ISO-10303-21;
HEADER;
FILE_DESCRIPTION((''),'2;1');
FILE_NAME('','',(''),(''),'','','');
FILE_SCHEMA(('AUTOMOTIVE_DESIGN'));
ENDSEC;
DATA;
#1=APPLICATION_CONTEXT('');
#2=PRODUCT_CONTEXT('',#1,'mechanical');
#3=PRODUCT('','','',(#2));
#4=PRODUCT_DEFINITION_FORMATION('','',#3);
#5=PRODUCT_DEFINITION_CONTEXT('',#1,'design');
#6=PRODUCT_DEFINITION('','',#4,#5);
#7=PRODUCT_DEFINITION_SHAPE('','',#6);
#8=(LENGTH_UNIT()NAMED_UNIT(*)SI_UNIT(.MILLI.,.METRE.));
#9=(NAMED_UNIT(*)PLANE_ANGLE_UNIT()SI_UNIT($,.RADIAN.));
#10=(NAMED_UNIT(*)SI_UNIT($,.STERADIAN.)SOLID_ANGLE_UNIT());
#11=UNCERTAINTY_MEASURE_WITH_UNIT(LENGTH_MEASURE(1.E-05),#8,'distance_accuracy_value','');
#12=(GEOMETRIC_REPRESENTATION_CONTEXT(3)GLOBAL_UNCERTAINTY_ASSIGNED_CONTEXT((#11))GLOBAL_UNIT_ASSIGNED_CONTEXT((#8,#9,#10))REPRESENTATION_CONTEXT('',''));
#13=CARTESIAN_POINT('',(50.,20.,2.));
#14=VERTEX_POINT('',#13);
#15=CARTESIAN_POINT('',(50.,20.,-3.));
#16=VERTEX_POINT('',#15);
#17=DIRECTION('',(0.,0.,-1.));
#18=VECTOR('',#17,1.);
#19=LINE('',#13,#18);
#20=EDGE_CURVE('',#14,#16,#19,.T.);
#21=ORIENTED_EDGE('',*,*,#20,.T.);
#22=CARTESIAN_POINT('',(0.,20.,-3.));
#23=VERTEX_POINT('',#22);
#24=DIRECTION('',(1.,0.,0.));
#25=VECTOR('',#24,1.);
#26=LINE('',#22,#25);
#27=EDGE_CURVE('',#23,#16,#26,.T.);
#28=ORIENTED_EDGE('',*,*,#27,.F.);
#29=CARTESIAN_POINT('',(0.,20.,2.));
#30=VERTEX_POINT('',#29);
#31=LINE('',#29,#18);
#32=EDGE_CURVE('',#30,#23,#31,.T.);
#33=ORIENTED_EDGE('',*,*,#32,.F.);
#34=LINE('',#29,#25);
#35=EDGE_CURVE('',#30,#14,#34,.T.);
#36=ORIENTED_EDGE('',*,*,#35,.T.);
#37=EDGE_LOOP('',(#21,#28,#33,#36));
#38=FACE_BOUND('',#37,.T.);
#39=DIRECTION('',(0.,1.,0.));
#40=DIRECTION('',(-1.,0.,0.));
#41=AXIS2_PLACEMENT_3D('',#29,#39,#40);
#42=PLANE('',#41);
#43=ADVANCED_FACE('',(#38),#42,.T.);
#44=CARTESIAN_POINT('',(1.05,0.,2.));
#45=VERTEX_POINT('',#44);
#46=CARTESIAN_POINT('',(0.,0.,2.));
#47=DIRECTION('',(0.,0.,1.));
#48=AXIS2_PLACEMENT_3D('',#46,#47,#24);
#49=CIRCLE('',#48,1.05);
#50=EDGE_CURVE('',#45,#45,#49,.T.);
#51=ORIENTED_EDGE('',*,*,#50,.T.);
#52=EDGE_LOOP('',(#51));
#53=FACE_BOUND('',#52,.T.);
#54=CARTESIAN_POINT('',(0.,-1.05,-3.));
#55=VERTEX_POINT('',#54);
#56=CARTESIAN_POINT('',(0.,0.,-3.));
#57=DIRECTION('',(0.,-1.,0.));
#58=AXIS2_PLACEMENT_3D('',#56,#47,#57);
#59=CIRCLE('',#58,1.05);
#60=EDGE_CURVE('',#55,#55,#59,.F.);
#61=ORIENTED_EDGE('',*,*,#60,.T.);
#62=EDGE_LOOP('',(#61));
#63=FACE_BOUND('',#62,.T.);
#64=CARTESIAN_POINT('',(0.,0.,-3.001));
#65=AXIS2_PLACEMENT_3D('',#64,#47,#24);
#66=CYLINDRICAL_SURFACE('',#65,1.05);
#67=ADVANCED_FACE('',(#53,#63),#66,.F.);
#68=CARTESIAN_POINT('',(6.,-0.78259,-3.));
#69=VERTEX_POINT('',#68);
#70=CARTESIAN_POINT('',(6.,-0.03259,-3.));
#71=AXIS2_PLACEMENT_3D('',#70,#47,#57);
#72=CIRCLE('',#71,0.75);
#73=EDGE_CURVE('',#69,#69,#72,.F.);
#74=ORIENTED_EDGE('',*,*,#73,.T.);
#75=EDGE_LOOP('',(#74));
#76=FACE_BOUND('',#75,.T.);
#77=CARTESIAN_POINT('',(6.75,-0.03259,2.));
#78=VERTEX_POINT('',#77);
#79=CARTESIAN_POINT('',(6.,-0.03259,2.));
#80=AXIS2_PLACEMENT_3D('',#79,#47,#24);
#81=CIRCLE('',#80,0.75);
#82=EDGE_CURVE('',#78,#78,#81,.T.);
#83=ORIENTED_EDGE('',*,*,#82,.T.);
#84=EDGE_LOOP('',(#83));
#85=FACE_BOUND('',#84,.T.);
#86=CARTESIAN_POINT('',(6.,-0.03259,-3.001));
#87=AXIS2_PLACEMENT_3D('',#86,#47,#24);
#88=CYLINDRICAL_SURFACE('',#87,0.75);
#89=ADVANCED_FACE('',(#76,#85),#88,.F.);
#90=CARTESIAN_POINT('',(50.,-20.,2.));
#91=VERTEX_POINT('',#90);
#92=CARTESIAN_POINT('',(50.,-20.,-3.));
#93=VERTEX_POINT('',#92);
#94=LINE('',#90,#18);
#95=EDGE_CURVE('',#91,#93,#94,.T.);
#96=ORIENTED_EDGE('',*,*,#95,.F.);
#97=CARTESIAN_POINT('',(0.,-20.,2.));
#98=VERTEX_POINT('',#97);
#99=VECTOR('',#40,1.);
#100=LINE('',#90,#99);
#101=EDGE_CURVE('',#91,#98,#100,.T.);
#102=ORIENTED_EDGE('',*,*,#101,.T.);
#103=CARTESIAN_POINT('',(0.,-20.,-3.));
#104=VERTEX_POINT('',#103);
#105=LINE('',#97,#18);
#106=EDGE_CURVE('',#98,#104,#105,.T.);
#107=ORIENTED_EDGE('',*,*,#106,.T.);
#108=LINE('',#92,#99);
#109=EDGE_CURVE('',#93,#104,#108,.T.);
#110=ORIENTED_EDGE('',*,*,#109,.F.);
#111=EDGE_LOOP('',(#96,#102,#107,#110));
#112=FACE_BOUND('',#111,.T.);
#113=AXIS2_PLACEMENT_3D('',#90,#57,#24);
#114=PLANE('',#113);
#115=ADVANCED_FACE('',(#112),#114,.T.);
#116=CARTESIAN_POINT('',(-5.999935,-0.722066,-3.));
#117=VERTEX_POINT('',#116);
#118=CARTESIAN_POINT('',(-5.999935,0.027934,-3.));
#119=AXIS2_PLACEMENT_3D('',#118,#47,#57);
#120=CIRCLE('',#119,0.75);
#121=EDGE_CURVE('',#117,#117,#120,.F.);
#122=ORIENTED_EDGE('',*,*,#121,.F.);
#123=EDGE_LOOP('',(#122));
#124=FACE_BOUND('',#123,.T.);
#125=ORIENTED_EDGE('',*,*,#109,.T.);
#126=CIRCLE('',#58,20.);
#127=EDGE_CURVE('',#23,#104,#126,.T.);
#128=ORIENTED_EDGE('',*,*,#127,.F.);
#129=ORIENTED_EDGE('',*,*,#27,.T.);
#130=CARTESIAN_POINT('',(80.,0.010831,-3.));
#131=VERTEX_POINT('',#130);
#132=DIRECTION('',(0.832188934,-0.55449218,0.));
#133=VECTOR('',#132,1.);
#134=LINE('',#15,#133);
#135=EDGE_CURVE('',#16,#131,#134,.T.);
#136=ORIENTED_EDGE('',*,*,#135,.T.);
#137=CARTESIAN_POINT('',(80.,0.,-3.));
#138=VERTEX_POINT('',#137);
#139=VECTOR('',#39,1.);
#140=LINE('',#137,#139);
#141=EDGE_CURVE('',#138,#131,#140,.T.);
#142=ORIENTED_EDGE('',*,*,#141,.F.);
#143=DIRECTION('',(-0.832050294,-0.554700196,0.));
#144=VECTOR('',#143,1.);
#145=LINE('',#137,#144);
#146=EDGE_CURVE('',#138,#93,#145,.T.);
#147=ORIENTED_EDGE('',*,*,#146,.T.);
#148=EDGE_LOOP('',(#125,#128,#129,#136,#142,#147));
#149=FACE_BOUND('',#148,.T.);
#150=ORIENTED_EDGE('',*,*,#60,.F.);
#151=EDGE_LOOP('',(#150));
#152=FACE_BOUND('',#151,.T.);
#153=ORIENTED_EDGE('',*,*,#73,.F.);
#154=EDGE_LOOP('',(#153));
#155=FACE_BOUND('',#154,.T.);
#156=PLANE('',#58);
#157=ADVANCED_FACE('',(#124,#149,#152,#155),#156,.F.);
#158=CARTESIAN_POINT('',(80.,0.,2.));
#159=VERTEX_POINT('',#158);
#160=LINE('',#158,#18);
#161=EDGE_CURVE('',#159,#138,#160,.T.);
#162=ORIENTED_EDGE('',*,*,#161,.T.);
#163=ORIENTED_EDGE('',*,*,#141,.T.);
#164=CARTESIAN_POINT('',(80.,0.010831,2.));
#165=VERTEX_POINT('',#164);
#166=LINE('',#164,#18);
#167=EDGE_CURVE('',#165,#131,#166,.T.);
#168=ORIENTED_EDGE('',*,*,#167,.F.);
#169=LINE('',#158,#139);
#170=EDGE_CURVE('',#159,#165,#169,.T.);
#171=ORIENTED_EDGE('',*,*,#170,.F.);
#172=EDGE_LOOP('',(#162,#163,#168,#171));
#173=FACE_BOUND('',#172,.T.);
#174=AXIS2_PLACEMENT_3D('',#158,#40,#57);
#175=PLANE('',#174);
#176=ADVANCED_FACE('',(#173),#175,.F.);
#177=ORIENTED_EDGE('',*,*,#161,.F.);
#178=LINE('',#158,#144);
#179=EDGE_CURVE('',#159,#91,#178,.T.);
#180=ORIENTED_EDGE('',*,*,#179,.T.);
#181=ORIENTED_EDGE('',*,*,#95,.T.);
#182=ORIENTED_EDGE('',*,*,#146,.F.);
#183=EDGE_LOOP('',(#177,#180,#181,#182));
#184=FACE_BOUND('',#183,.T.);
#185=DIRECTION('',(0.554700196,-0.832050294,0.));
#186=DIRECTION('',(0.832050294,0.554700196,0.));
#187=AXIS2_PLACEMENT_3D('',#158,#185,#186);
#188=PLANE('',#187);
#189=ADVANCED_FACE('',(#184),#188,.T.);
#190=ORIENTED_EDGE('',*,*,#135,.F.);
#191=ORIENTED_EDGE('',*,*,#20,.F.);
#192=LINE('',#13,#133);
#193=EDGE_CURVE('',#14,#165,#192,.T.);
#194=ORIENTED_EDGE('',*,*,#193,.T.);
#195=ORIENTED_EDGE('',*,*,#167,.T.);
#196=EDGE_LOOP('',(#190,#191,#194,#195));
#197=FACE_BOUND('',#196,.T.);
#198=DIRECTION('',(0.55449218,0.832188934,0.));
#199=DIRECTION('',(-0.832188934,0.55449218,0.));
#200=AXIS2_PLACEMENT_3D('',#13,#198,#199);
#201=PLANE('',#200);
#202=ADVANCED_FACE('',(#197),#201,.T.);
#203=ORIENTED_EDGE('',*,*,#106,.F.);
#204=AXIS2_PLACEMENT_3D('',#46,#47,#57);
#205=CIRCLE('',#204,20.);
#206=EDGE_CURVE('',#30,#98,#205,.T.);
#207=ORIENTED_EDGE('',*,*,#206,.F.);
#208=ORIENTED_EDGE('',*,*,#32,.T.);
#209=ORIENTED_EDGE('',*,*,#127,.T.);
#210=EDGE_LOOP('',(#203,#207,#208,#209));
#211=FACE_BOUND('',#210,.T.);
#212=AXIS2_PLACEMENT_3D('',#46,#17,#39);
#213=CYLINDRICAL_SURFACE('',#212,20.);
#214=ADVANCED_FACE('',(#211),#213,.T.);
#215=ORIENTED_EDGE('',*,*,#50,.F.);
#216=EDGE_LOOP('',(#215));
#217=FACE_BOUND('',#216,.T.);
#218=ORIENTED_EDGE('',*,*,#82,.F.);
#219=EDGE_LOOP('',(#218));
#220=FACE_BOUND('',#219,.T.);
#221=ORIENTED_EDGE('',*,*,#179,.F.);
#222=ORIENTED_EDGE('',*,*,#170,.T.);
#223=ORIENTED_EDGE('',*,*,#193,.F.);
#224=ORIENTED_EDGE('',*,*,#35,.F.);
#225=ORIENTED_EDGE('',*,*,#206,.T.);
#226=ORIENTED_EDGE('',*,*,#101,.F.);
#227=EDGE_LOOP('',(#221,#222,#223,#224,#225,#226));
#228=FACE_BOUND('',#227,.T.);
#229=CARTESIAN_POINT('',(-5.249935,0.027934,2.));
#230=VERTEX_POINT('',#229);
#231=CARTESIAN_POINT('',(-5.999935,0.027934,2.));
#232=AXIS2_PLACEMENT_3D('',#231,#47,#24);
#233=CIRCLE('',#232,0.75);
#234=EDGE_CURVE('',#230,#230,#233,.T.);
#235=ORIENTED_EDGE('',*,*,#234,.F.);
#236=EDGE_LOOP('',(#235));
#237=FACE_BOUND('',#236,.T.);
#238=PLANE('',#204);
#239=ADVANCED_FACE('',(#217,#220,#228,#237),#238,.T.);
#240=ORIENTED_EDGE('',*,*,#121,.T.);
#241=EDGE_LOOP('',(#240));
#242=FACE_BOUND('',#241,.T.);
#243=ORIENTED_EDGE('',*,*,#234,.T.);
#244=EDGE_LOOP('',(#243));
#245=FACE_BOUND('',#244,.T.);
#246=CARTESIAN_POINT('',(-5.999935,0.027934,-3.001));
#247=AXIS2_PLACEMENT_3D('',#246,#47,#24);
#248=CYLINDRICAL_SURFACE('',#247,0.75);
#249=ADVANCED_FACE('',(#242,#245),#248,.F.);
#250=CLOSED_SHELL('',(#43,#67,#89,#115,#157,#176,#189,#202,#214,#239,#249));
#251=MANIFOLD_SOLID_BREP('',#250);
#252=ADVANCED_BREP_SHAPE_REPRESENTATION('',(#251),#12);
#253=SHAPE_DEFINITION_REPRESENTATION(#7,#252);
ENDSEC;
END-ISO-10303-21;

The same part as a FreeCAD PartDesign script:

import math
import FreeCAD as App
import Part
import Sketcher
from FreeCAD import Vector

doc = App.newDocument("Part")
params = doc.addObject("Spreadsheet::Sheet", "Params")
for row, (alias, value) in enumerate([
    ("sketch1_radius", "20 mm"),
    ("sketch1_width", "50 mm"),
    ("pad1_length", "5 mm"),
    ("sketch2_diameter", "2.1 mm"),
    ("sketch3_diameter", "1.5 mm"),
    ("sketch4_diameter", "1.5 mm"),
], start=1):
    params.set(f"A{row}", alias)
    params.set(f"B{row}", "=" + value)
    params.setAlias(f"B{row}", alias)

body = doc.addObject("PartDesign::Body", "Body")

sketch1 = body.newObject("Sketcher::SketchObject", "Sketch")
sketch1.AttachmentSupport = (doc.getObject("XZ_Plane"), [""])
sketch1.MapMode = "FlatFace"
sketch1.addGeometry(Part.LineSegment(Vector(0, 20, 0), Vector(50, 20, 0)), False)
sketch1.addGeometry(Part.LineSegment(Vector(50, 20, 0), Vector(80, 0, 0)), False)
sketch1.addGeometry(Part.LineSegment(Vector(80, 0, 0), Vector(80, -0.011, 0)), False)
sketch1.addGeometry(Part.LineSegment(Vector(80, -0.011, 0), Vector(50, -20, 0)), False)
sketch1.addGeometry(Part.LineSegment(Vector(50, -20, 0), Vector(0, -20, 0)), False)
sketch1.addGeometry(Part.ArcOfCircle(Part.Circle(Vector(0, 0, 0), Vector(0, 0, 1), 20), math.radians(90), math.radians(270)), False)
sketch1.addConstraint(Sketcher.Constraint("Coincident", 0, 2, 1, 1))
sketch1.addConstraint(Sketcher.Constraint("Coincident", 1, 2, 2, 1))
sketch1.addConstraint(Sketcher.Constraint("Coincident", 2, 2, 3, 1))
sketch1.addConstraint(Sketcher.Constraint("Coincident", 3, 2, 4, 1))
sketch1.addConstraint(Sketcher.Constraint("Tangent", 4, 2, 5, 2))
sketch1.addConstraint(Sketcher.Constraint("Tangent", 5, 1, 0, 1))
sketch1.addConstraint(Sketcher.Constraint("Horizontal", 0))
sketch1.addConstraint(Sketcher.Constraint("Vertical", 2))
sketch1.addConstraint(Sketcher.Constraint("Horizontal", 4))
sketch1.addConstraint(Sketcher.Constraint("Coincident", 5, 3, -1, 1))
sketch1.addConstraint(Sketcher.Constraint("PointOnObject", 1, 2, -1))
sketch1.addConstraint(Sketcher.Constraint("Vertical", 0, 2, 3, 2))
sketch1.addConstraint(Sketcher.Constraint("Radius", 5, 20.0))
sketch1.addConstraint(Sketcher.Constraint("DistanceX", 0, 1, 0, 2, 50.0))
sketch1.addConstraint(Sketcher.Constraint("DistanceX", -1, 1, 1, 2, 80.0))
sketch1.addConstraint(Sketcher.Constraint("DistanceY", 2, 2, 2, 1, 0.010831))
sketch1.setExpression("Constraints[12]", "Params.sketch1_radius")
sketch1.setExpression("Constraints[13]", "Params.sketch1_width")
pad1 = body.newObject("PartDesign::Pad", "Pad")
pad1.Profile = sketch1
pad1.setExpression("Length", "Params.pad1_length")
pad1.Reversed = True
body2 = doc.addObject("PartDesign::Body", "Body001")
doc.recompute()

body.Placement = App.Placement(Vector(0, 0, 0), App.Rotation(Vector(1, 0, 0), 90))
boolean = body2.newObject("PartDesign::Boolean", "Boolean")
boolean.Type = "Fuse"
boolean.addObjects([body])

sketch2 = body2.newObject("Sketcher::SketchObject", "Sketch001")
sketch2.AttachmentSupport = (doc.getObject("XY_Plane001"), [""])
sketch2.MapMode = "FlatFace"
sketch2.AttachmentOffset = App.Placement(Vector(0, 0, 5), App.Rotation())
sketch2.addGeometry(Part.Circle(Vector(0, 0, 0), Vector(0, 0, 1), 1.1), False)
sketch2.addConstraint(Sketcher.Constraint("Coincident", 0, 3, -1, 1))
sketch2.addConstraint(Sketcher.Constraint("Diameter", 0, 2.1))
sketch2.setExpression("Constraints[1]", "Params.sketch2_diameter")
pocket1 = body2.newObject("PartDesign::Pocket", "Pocket")
pocket1.Profile = sketch2
pocket1.Type = "UpToFirst"

sketch3 = body2.newObject("Sketcher::SketchObject", "Sketch002")
sketch3.AttachmentSupport = (doc.getObject("XY_Plane001"), [""])
sketch3.MapMode = "FlatFace"
sketch3.AttachmentOffset = App.Placement(Vector(0, 0, 5), App.Rotation())
sketch3.addGeometry(Part.Circle(Vector(6, 0, 0), Vector(0, 0, 1), 0.8), False)
sketch3.addConstraint(Sketcher.Constraint("Diameter", 0, 1.5))
sketch3.addConstraint(Sketcher.Constraint("DistanceX", -1, 1, 0, 3, 6.0))
sketch3.addConstraint(Sketcher.Constraint("DistanceY", 0, 3, -1, 1, 0.03259))
sketch3.setExpression("Constraints[0]", "Params.sketch3_diameter")
pocket2 = body2.newObject("PartDesign::Pocket", "Pocket001")
pocket2.Profile = sketch3
pocket2.Type = "UpToFirst"

sketch4 = body2.newObject("Sketcher::SketchObject", "Sketch003")
sketch4.AttachmentSupport = (doc.getObject("XY_Plane001"), [""])
sketch4.MapMode = "FlatFace"
sketch4.AttachmentOffset = App.Placement(Vector(0, 0, 5), App.Rotation())
sketch4.addGeometry(Part.Circle(Vector(-6, 0, 0), Vector(0, 0, 1), 0.8), False)
sketch4.addConstraint(Sketcher.Constraint("Diameter", 0, 1.5))
sketch4.addConstraint(Sketcher.Constraint("DistanceX", 0, 3, -1, 1, 5.999935))
sketch4.addConstraint(Sketcher.Constraint("DistanceY", -1, 1, 0, 3, 0.027934))
sketch4.setExpression("Constraints[0]", "Params.sketch4_diameter")
pocket3 = body2.newObject("PartDesign::Pocket", "Pocket002")
pocket3.Profile = sketch4
pocket3.Type = "UpToFirst"
body3 = doc.addObject("PartDesign::Body", "Body002")
doc.recompute()

body2.Placement = App.Placement(Vector(0, 0, -3), App.Rotation(Vector(0, 0, 1), 0))
boolean2 = body3.newObject("PartDesign::Boolean", "Boolean001")
boolean2.Type = "Fuse"
boolean2.addObjects([body2])

doc.recompute()
